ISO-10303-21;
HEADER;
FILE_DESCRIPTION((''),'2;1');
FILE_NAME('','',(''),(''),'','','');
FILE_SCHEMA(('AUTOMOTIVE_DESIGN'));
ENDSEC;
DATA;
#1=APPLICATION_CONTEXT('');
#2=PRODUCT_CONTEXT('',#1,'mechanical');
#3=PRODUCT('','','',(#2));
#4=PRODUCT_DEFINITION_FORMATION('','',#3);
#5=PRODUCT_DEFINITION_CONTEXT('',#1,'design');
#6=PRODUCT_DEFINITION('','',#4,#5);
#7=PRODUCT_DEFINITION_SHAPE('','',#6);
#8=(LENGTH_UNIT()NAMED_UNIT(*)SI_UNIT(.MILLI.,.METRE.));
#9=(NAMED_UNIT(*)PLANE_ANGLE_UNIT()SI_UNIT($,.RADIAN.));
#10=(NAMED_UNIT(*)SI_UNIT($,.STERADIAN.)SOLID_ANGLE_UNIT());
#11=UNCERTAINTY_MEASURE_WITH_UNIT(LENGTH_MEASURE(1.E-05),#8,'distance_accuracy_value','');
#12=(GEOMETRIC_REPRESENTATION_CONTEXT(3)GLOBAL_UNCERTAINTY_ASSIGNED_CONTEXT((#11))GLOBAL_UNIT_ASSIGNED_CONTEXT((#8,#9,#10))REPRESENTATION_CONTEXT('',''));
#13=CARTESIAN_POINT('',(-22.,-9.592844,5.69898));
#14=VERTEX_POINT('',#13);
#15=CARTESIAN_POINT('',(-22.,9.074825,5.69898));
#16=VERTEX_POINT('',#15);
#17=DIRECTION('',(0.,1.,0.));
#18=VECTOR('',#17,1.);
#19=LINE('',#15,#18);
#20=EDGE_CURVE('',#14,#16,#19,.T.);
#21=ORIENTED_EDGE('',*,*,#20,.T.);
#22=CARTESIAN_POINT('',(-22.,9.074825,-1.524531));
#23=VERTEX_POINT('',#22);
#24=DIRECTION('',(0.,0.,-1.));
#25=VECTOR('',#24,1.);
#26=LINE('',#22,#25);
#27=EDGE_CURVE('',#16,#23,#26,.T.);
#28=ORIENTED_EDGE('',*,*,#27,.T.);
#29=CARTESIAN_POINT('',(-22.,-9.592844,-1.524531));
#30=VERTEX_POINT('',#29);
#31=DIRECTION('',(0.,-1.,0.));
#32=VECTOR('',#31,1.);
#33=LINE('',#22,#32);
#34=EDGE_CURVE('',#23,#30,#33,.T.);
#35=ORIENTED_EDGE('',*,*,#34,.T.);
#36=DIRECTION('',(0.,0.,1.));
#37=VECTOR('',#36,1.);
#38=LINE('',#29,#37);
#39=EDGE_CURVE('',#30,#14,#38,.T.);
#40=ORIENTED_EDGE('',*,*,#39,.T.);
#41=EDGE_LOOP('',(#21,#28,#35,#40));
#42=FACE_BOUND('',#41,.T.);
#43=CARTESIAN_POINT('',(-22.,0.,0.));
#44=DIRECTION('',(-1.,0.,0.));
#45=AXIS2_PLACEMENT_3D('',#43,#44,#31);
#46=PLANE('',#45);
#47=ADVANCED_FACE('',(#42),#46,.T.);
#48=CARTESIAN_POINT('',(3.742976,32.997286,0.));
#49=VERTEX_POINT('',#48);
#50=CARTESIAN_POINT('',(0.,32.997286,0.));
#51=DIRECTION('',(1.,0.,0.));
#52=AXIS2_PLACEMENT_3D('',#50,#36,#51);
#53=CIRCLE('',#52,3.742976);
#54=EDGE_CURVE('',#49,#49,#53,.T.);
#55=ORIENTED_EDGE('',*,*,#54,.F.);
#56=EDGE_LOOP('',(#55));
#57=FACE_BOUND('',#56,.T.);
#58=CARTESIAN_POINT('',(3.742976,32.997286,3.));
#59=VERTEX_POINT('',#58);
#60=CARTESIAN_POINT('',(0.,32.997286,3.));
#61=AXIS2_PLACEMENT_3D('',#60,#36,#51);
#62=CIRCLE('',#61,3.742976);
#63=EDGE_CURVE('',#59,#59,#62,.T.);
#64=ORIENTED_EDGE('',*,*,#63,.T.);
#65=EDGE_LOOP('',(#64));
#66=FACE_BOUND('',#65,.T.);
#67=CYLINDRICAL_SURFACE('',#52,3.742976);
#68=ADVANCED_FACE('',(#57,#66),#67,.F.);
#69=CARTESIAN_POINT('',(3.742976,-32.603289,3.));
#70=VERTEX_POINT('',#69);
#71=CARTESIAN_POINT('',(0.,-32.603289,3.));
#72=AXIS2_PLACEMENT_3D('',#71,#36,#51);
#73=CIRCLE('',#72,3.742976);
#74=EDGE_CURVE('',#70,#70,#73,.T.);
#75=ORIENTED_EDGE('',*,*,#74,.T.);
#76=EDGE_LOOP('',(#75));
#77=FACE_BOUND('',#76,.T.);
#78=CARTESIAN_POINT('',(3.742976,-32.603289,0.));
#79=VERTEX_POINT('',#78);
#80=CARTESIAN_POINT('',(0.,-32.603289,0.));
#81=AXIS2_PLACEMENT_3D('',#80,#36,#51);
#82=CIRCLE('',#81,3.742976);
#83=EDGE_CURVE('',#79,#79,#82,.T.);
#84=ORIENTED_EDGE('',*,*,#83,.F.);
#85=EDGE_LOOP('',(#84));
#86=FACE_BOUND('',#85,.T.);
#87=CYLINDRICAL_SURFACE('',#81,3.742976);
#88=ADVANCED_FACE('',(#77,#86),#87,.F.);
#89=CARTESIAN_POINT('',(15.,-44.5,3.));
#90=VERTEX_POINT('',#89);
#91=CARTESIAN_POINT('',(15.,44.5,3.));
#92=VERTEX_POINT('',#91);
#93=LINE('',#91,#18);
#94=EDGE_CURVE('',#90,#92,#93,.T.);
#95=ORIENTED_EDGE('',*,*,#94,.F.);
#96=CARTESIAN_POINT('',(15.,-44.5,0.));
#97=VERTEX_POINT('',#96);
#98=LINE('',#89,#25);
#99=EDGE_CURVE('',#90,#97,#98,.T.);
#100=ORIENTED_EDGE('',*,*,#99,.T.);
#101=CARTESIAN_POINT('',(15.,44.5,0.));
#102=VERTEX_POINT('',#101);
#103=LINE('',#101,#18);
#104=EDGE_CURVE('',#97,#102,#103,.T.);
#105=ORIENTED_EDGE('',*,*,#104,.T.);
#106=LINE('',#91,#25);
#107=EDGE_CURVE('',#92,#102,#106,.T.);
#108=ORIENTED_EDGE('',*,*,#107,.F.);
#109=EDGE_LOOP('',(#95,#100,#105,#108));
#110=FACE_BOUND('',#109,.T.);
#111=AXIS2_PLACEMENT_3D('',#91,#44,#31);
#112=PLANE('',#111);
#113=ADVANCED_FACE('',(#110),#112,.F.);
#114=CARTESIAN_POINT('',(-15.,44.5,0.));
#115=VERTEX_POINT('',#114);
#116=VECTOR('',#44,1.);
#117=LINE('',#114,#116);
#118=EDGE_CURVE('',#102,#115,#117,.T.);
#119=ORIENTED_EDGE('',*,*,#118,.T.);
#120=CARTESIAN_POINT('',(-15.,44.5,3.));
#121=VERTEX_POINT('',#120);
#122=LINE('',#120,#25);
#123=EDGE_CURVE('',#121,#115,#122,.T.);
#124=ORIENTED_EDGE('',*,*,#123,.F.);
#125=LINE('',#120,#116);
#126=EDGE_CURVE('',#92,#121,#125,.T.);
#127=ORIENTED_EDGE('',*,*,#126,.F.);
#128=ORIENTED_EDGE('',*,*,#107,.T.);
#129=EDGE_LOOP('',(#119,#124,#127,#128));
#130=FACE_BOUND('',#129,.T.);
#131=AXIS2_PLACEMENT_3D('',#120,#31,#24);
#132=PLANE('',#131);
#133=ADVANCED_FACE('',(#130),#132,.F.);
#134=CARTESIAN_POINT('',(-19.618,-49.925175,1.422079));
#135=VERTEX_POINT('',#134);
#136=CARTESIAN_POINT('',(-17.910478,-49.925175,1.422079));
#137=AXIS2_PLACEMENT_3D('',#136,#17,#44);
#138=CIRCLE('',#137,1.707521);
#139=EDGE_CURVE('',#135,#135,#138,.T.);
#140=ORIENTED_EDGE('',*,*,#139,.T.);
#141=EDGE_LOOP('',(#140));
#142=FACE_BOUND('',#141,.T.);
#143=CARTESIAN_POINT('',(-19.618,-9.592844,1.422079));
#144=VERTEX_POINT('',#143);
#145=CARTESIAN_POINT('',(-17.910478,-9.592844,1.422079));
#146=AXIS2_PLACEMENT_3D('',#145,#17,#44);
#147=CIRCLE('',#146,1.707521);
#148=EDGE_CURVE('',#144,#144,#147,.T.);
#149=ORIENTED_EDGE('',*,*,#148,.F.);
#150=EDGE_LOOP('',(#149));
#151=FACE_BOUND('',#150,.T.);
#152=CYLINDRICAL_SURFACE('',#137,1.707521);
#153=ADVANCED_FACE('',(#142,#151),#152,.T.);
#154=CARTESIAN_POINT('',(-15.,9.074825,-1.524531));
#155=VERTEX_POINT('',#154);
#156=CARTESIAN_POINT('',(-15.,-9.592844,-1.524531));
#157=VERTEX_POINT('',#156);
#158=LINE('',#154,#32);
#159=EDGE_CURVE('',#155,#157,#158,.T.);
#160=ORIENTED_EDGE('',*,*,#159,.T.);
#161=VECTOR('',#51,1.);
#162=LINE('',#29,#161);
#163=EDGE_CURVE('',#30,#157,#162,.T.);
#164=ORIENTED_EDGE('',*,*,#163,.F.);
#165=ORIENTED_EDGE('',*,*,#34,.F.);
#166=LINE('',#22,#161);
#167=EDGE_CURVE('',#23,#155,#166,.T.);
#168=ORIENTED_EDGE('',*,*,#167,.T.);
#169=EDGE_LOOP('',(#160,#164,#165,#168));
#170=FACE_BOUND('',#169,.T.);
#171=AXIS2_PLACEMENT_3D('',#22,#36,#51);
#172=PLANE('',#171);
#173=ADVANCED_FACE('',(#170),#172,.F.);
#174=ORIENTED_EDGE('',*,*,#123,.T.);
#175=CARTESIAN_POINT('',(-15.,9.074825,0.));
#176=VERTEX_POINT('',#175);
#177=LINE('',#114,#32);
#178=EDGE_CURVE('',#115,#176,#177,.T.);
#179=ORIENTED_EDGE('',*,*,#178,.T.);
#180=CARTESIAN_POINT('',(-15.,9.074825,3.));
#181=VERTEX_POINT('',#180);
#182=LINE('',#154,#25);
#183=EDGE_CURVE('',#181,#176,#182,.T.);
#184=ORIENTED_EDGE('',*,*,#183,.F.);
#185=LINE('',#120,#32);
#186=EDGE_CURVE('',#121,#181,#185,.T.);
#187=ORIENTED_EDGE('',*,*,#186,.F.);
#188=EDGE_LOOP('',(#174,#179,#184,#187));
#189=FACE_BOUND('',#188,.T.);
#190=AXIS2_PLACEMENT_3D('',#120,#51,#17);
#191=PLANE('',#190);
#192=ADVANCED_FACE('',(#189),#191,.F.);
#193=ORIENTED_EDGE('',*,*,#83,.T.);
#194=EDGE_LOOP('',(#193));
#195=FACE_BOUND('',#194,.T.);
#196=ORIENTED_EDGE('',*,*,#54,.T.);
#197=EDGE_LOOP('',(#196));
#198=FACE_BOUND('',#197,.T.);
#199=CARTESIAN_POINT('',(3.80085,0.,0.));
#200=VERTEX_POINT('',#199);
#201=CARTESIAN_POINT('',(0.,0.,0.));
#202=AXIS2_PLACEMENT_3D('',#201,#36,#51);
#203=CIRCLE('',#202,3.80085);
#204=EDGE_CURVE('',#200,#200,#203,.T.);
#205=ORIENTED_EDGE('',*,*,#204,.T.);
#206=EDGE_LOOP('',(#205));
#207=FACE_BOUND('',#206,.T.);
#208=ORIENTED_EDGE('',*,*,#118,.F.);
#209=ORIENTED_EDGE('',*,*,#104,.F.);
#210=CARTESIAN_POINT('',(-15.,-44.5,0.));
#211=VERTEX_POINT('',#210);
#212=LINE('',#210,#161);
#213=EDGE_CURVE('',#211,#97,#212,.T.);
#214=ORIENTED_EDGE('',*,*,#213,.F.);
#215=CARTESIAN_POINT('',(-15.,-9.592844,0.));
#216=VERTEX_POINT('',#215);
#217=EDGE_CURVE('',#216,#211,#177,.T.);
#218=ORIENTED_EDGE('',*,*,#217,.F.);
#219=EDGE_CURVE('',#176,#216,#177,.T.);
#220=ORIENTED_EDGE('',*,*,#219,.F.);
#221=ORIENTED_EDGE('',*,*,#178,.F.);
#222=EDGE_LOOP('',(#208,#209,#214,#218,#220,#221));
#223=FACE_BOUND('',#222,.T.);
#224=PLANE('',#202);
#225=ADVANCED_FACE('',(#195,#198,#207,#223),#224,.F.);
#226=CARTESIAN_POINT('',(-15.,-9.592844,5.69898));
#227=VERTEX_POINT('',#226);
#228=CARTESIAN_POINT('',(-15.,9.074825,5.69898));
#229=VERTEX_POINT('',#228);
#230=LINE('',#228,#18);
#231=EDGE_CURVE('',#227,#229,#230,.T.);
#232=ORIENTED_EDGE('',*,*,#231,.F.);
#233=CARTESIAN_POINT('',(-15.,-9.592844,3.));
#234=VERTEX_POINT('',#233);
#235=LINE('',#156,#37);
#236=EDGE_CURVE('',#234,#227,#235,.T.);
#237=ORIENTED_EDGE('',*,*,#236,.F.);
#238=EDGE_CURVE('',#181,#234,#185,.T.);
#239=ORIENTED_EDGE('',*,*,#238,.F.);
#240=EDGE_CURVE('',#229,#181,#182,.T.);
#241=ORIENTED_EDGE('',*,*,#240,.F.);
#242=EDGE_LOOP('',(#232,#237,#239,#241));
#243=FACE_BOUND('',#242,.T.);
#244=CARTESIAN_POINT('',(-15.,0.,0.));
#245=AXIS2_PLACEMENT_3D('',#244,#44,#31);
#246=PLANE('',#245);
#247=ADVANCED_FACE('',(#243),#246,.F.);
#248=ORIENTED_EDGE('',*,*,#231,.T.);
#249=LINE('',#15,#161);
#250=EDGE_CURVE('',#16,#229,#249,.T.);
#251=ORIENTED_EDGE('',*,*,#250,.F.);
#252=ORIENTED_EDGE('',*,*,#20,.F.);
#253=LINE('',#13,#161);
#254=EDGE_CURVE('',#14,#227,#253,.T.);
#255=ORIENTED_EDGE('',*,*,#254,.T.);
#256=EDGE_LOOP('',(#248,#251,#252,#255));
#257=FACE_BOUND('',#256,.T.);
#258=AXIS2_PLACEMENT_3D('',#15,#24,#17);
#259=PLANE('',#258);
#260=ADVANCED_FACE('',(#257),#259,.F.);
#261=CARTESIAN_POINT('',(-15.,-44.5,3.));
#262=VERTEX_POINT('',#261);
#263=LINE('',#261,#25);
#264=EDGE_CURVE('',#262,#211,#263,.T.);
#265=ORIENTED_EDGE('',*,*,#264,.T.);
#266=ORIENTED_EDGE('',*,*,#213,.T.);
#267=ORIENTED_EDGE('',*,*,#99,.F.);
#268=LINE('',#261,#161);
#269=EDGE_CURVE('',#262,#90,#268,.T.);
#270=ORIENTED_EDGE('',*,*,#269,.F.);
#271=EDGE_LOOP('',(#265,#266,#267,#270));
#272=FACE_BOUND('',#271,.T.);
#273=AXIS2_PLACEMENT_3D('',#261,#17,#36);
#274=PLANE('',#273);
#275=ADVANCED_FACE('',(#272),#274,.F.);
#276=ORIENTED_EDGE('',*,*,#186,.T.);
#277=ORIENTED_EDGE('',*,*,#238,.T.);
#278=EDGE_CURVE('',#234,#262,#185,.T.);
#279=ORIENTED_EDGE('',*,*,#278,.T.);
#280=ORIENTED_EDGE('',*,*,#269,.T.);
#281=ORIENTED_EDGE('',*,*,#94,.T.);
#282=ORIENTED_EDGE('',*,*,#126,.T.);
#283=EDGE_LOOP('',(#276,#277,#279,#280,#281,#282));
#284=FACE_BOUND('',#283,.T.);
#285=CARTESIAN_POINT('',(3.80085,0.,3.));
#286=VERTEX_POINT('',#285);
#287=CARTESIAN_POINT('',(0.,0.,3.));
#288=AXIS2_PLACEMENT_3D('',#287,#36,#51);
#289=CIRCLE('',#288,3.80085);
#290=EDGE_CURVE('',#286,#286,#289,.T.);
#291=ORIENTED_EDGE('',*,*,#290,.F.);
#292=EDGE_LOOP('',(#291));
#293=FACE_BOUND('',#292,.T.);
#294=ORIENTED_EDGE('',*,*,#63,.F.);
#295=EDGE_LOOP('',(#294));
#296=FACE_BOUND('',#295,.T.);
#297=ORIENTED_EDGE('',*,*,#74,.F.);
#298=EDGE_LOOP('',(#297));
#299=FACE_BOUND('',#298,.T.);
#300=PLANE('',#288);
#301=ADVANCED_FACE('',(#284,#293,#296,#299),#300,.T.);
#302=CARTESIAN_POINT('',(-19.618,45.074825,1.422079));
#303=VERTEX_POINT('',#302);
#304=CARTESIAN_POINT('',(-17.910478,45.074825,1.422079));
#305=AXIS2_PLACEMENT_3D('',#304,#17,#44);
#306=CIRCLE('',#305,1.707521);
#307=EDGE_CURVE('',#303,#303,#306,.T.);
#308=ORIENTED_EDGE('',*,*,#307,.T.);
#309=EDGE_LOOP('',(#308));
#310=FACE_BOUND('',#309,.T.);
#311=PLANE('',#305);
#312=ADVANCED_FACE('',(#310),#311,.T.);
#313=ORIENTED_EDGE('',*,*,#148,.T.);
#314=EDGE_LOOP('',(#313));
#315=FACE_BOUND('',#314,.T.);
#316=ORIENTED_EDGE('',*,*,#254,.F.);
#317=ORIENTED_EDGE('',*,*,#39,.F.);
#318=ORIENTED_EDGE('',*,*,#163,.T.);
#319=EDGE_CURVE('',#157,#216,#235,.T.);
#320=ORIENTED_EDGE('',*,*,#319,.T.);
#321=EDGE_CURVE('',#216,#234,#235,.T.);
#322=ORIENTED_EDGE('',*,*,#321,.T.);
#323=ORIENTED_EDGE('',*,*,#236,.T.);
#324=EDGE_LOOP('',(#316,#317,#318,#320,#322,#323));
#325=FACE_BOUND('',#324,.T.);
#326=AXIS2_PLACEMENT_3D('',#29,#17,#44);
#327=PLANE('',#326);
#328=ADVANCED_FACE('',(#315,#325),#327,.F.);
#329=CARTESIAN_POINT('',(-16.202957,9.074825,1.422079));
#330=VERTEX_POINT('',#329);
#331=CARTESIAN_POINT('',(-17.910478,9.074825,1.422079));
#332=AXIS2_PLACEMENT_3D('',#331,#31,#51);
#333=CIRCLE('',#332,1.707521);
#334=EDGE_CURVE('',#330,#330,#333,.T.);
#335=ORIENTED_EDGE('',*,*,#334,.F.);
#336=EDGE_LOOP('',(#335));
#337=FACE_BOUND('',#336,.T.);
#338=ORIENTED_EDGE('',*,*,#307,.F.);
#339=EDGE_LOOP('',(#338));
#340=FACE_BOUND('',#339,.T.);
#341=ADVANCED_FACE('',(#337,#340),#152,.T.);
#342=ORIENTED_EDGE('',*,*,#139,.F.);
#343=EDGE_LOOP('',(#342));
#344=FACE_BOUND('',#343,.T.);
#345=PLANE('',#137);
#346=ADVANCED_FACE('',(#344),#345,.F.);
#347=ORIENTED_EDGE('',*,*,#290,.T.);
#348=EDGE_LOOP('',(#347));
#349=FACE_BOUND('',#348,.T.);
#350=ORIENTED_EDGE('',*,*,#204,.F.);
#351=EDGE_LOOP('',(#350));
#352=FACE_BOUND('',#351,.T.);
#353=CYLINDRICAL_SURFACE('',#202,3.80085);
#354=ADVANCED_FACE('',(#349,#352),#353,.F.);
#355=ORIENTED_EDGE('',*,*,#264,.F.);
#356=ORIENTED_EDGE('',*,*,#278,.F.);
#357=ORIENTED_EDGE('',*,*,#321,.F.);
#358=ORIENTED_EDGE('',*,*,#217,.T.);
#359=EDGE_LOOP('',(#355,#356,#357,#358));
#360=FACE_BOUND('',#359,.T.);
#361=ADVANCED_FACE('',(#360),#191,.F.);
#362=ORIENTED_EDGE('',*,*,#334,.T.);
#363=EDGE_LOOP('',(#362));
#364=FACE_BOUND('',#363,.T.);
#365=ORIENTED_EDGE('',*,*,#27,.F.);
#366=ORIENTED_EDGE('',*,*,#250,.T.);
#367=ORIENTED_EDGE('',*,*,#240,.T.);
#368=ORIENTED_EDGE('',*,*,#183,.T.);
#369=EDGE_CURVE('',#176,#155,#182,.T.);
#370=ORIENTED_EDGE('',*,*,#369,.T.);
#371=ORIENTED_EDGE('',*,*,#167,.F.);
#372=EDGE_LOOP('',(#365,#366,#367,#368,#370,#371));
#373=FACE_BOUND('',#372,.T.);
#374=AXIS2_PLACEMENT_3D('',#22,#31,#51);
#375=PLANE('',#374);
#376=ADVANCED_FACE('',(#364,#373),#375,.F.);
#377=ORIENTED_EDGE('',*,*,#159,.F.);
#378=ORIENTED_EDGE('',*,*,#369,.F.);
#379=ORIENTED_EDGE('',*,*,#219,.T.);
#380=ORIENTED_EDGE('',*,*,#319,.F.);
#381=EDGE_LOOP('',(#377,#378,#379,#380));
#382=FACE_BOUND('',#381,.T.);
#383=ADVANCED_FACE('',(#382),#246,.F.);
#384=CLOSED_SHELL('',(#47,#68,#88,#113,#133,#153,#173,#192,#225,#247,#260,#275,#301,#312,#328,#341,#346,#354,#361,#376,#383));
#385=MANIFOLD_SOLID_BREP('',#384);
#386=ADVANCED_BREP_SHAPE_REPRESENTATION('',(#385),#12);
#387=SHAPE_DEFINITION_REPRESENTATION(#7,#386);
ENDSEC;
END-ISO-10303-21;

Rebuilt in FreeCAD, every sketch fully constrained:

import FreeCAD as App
import Part
import Sketcher

V = App.Vector


def add_polygon(sketch, points):
    """Adds a closed chain of lines whose ends are joined by coincident constraints."""
    first, n = sketch.GeometryCount, len(points)
    for a, b in zip(points, points[1:] + points[:1]):
        sketch.addGeometry(Part.LineSegment(App.Vector(*a, 0), App.Vector(*b, 0)), False)
    for i in range(n):
        sketch.addConstraint(Sketcher.Constraint("Coincident", first + i, 2, first + (i + 1) % n, 1))

doc = App.newDocument("Part")
params = doc.addObject("Spreadsheet::Sheet", "Params")
for row, (alias, value) in enumerate([
    ("sketch1_width", "30 mm"),
    ("sketch1_height", "89 mm"),
    ("pad1_length", "3 mm"),
    ("pocket1_length", "3 mm"),
    ("pad2_length", "7 mm"),
    ("pad3_length", "36 mm"),
    ("pad3_length2", "59 mm"),
], start=1):
    params.set(f"A{row}", alias)
    params.set(f"B{row}", "=" + value)
    params.setAlias(f"B{row}", alias)

body = doc.addObject("PartDesign::Body", "Body")

# Sketch on XY plane
sketch1 = body.newObject("Sketcher::SketchObject", "Sketch")
sketch1.AttachmentSupport = (doc.getObject("XY_Plane"), [""])
sketch1.MapMode = "FlatFace"
add_polygon(sketch1, [(-15, 44.5), (-15, -44.5), (15, -44.5), (15, 44.5)])  # lines 0-3
sketch1.addConstraint([
    Sketcher.Constraint("Vertical", 0),
    Sketcher.Constraint("Horizontal", 1),
    Sketcher.Constraint("Vertical", 2),
    Sketcher.Constraint("Horizontal", 3),
    Sketcher.Constraint("Symmetric", 0, 2, 2, 2, -1, 1),
    Sketcher.Constraint("DistanceX", 1, 1, 1, 2, 30.0),
    Sketcher.Constraint("DistanceY", 0, 2, 0, 1, 89.0),
])
sketch1.setExpression("Constraints[9]", "Params.sketch1_width")
sketch1.setExpression("Constraints[10]", "Params.sketch1_height")
pad1 = body.newObject("PartDesign::Pad", "Pad")
pad1.Profile = sketch1
pad1.setExpression("Length", "Params.pad1_length")

# Sketch on XY plane
sketch2 = body.newObject("Sketcher::SketchObject", "Sketch001")
sketch2.AttachmentSupport = (doc.getObject("XY_Plane"), [""])
sketch2.MapMode = "FlatFace"
sketch2.AttachmentOffset = App.Placement(V(0, 0, 3), App.Rotation())
sketch2.addGeometry([
    Part.Circle(V(0, 0, 0), V(0, 0, 1), 3.80085),
    Part.Circle(V(0, 32.997286, 0), V(0, 0, 1), 3.742976),
    Part.Circle(V(0, -32.603289, 0), V(0, 0, 1), 3.742976),
], False)
sketch2.addConstraint([
    Sketcher.Constraint("Coincident", 0, 3, -1, 1),
    Sketcher.Constraint("Equal", 1, 2),
    Sketcher.Constraint("PointOnObject", 1, 3, -2),
    Sketcher.Constraint("PointOnObject", 2, 3, -2),
    Sketcher.Constraint("Diameter", 0, 7.601701),
    Sketcher.Constraint("Diameter", 1, 7.485952),
    Sketcher.Constraint("DistanceY", 2, 3, -1, 1, 32.603289),
    Sketcher.Constraint("DistanceY", -1, 1, 1, 3, 32.997286),
])
pocket1 = body.newObject("PartDesign::Pocket", "Pocket")
pocket1.Profile = sketch2
pocket1.setExpression("Length", "Params.pocket1_length")

# Sketch on YZ plane
sketch3 = body.newObject("Sketcher::SketchObject", "Sketch002")
sketch3.AttachmentSupport = (doc.getObject("YZ_Plane"), [""])
sketch3.MapMode = "FlatFace"
sketch3.AttachmentOffset = App.Placement(V(0, 0, -15), App.Rotation())
add_polygon(sketch3, [(9.074825, -1.524531), (-9.592844, -1.524531), (-9.592844, 5.69898), (9.074825, 5.69898)])  # lines 0-3
sketch3.addConstraint([
    Sketcher.Constraint("Horizontal", 0),
    Sketcher.Constraint("Vertical", 1),
    Sketcher.Constraint("Horizontal", 2),
    Sketcher.Constraint("Vertical", 3),
    Sketcher.Constraint("DistanceX", 0, 2, 0, 1, 18.66767),
    Sketcher.Constraint("DistanceY", 1, 1, 1, 2, 7.22351),
    Sketcher.Constraint("DistanceY", 0, 2, -1, 1, 1.524531),
    Sketcher.Constraint("DistanceX", 0, 2, -1, 1, 9.592844),
])
pad2 = body.newObject("PartDesign::Pad", "Pad001")
pad2.Profile = sketch3
pad2.setExpression("Length", "Params.pad2_length")
pad2.Reversed = True

# Sketch on XZ plane
sketch4 = body.newObject("Sketcher::SketchObject", "Sketch003")
sketch4.AttachmentSupport = (doc.getObject("XZ_Plane"), [""])
sketch4.MapMode = "FlatFace"
sketch4.AttachmentOffset = App.Placement(V(0, 0, -9.074825), App.Rotation())
sketch4.addGeometry(Part.Circle(V(-17.910478, 1.422079, 0), V(0, 0, 1), 1.707521), False)
sketch4.addConstraint([
    Sketcher.Constraint("Diameter", 0, 3.415043),
    Sketcher.Constraint("DistanceX", 0, 3, -1, 1, 17.910478),
    Sketcher.Constraint("DistanceY", -1, 1, 0, 3, 1.422079),
])
pad3 = body.newObject("PartDesign::Pad", "Pad002")
pad3.Profile = sketch4
pad3.Type = "TwoLengths"
pad3.setExpression("Length", "Params.pad3_length")
pad3.setExpression("Length2", "Params.pad3_length2")
pad3.Reversed = True

doc.recompute()
